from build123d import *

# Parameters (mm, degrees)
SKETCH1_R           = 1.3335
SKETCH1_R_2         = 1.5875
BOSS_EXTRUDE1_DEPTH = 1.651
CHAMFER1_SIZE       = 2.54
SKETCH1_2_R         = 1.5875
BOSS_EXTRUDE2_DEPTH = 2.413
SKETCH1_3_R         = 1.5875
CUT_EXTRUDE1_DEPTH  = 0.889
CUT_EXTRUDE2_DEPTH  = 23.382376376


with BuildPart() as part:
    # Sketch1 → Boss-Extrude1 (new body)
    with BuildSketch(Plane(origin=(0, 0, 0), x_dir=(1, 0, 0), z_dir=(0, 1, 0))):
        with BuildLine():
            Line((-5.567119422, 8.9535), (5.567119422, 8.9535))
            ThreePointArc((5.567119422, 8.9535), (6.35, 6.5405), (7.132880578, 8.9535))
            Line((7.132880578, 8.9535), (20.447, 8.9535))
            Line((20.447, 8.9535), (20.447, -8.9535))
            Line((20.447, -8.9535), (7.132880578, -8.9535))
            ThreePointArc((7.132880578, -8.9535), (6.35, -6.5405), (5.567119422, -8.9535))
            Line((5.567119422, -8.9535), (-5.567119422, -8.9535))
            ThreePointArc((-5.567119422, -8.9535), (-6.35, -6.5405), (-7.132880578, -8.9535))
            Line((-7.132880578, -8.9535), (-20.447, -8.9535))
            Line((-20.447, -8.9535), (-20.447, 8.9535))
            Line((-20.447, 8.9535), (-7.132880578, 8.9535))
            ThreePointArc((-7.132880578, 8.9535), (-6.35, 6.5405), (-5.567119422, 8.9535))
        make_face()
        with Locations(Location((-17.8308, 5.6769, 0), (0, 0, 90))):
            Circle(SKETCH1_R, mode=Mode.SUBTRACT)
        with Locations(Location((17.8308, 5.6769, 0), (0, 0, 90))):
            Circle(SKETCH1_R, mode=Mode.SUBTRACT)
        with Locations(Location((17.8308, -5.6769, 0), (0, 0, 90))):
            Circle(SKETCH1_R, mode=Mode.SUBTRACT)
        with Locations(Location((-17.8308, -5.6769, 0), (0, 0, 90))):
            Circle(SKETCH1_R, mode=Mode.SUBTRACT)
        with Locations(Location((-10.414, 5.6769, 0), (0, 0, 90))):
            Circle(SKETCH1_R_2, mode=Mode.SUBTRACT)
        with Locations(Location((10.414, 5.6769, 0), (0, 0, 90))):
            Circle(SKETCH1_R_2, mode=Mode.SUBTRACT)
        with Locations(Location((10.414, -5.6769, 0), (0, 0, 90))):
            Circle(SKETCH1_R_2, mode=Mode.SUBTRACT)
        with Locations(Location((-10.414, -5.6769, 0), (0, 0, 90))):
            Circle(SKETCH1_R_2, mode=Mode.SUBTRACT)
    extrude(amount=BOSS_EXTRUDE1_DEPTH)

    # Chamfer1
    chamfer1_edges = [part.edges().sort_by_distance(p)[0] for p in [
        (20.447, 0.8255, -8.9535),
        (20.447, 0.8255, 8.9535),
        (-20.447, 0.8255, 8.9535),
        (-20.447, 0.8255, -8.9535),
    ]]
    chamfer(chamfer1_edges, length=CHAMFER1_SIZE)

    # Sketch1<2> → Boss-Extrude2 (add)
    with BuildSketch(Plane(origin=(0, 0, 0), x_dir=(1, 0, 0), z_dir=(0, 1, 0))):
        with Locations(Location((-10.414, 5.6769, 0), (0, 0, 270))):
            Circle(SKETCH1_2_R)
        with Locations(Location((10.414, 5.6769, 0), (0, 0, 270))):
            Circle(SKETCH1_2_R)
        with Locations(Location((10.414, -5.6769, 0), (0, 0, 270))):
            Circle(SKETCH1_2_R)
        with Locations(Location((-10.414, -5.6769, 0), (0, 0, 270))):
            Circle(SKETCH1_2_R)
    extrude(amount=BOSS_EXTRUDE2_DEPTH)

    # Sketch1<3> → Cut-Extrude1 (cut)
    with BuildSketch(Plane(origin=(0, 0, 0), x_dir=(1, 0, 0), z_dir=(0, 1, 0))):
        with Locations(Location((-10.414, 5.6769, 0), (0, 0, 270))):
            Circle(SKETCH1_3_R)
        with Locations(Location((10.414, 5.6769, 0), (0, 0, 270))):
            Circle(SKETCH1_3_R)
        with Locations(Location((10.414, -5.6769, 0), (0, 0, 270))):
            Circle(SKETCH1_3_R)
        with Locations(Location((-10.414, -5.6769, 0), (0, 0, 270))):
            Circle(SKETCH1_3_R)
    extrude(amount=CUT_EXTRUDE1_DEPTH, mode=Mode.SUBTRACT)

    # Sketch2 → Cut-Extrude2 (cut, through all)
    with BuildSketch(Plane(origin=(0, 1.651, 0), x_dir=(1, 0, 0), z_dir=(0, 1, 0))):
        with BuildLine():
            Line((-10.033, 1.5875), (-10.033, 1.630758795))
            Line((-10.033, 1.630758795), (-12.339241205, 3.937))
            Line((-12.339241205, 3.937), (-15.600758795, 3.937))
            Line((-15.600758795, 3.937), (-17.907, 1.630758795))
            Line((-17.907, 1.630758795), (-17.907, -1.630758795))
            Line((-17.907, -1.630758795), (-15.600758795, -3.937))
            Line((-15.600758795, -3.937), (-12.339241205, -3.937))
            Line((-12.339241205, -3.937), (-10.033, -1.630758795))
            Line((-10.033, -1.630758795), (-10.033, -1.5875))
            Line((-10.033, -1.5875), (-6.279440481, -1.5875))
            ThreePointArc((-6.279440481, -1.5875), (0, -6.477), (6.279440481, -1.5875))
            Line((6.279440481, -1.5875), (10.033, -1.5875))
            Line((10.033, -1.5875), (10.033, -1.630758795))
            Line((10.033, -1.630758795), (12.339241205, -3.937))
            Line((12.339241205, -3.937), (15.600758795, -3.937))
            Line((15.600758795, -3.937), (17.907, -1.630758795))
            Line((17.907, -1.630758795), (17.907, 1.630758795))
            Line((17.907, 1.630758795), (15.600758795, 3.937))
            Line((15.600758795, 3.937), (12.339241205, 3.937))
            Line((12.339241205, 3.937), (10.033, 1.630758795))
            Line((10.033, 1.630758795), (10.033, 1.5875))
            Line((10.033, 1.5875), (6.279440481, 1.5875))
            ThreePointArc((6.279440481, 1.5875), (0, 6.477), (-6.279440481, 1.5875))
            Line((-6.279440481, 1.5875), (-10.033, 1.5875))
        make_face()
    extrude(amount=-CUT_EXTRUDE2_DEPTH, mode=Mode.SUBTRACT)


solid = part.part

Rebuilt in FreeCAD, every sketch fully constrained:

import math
import FreeCAD as App
import Part
import Sketcher
Q = App.Units.Quantity


def edges_at(feature, points):
    """Names of the edges that pass closest to the given points."""
    edges = feature.Shape.Edges
    near = lambda p: min(range(len(edges)), key=lambda i: edges[i].distToShape(Part.Vertex(*p))[0])
    return sorted({f"Edge{near(p) + 1}" for p in points})

doc = App.newDocument("Part")
params = doc.addObject("Spreadsheet::Sheet", "Params")
for row, (alias, value) in enumerate([
    ("sketch1_diameter", "0.105 in"),
    ("sketch1_diameter2", "0.125 in"),
    ("sketch1_height", "0.705 in"),
    ("pad1_length", "0.065 in"),
    ("chamfer_size", "0.1 in"),
    ("sketch2_diameter", "0.125 in"),
    ("pad2_length", "0.095 in"),
    ("sketch3_diameter", "0.125 in"),
    ("pocket1_length", "0.035 in"),
    ("sketch4_radius", "0.255 in"),
], start=1):
    params.set(f"A{row}", alias)
    params.set(f"B{row}", "=" + value)
    params.setAlias(f"B{row}", alias)

body = doc.addObject("PartDesign::Body", "Body")

sketch1 = body.newObject("Sketcher::SketchObject", "Sketch")
sketch1.AttachmentSupport = (doc.getObject("XZ_Plane"), [""])
sketch1.MapMode = "FlatFace"
sketch1.addGeometry(Part.LineSegment(App.Vector(5.567119, -8.9535, 0), App.Vector(-5.567119, -8.9535, 0)), False)
sketch1.addGeometry(Part.ArcOfCircle(Part.Circle(App.Vector(-6.35, -7.874, 0), App.Vector(0, 0, 1), 1.3335), math.radians(-54.049432), math.radians(234.049432)), False)
sketch1.addGeometry(Part.LineSegment(App.Vector(-7.132881, -8.9535, 0), App.Vector(-20.447, -8.9535, 0)), False)
sketch1.addGeometry(Part.LineSegment(App.Vector(-20.447, -8.9535, 0), App.Vector(-20.447, 8.9535, 0)), False)
sketch1.addGeometry(Part.LineSegment(App.Vector(-20.447, 8.9535, 0), App.Vector(-7.132881, 8.9535, 0)), False)
sketch1.addGeometry(Part.ArcOfCircle(Part.Circle(App.Vector(-6.35, 7.874, 0), App.Vector(0, 0, 1), 1.3335), math.radians(125.950568), math.radians(414.049432)), False)
sketch1.addGeometry(Part.LineSegment(App.Vector(-5.567119, 8.9535, 0), App.Vector(5.567119, 8.9535, 0)), False)
sketch1.addGeometry(Part.ArcOfCircle(Part.Circle(App.Vector(6.35, 7.874, 0), App.Vector(0, 0, 1), 1.3335), math.radians(125.950568), math.radians(414.049432)), False)
sketch1.addGeometry(Part.LineSegment(App.Vector(7.132881, 8.9535, 0), App.Vector(20.447, 8.9535, 0)), False)
sketch1.addGeometry(Part.LineSegment(App.Vector(20.447, 8.9535, 0), App.Vector(20.447, -8.9535, 0)), False)
sketch1.addGeometry(Part.LineSegment(App.Vector(20.447, -8.9535, 0), App.Vector(7.132881, -8.9535, 0)), False)
sketch1.addGeometry(Part.ArcOfCircle(Part.Circle(App.Vector(6.35, -7.874, 0), App.Vector(0, 0, 1), 1.3335), math.radians(-54.049432), math.radians(234.049432)), False)
sketch1.addGeometry(Part.Circle(App.Vector(17.8308, 5.6769, 0), App.Vector(0, 0, 1), 1.3335), False)
sketch1.addGeometry(Part.Circle(App.Vector(10.414, 5.6769, 0), App.Vector(0, 0, 1), 1.5875), False)
sketch1.addGeometry(Part.Circle(App.Vector(-10.414, 5.6769, 0), App.Vector(0, 0, 1), 1.5875), False)
sketch1.addGeometry(Part.Circle(App.Vector(-17.8308, 5.6769, 0), App.Vector(0, 0, 1), 1.3335), False)
sketch1.addGeometry(Part.Circle(App.Vector(17.8308, -5.6769, 0), App.Vector(0, 0, 1), 1.3335), False)
sketch1.addGeometry(Part.Circle(App.Vector(10.414, -5.6769, 0), App.Vector(0, 0, 1), 1.5875), False)
sketch1.addGeometry(Part.Circle(App.Vector(-10.414, -5.6769, 0), App.Vector(0, 0, 1), 1.5875), False)
sketch1.addGeometry(Part.Circle(App.Vector(-17.8308, -5.6769, 0), App.Vector(0, 0, 1), 1.3335), False)
sketch1.addConstraint(Sketcher.Constraint("Coincident", 0, 2, 1, 1))
sketch1.addConstraint(Sketcher.Constraint("Coincident", 1, 2, 2, 1))
sketch1.addConstraint(Sketcher.Constraint("Coincident", 2, 2, 3, 1))
sketch1.addConstraint(Sketcher.Constraint("Coincident", 3, 2, 4, 1))
sketch1.addConstraint(Sketcher.Constraint("Coincident", 4, 2, 5, 1))
sketch1.addConstraint(Sketcher.Constraint("Coincident", 5, 2, 6, 1))
sketch1.addConstraint(Sketcher.Constraint("Coincident", 6, 2, 7, 1))
sketch1.addConstraint(Sketcher.Constraint("Coincident", 7, 2, 8, 1))
sketch1.addConstraint(Sketcher.Constraint("Coincident", 8, 2, 9, 1))
sketch1.addConstraint(Sketcher.Constraint("Coincident", 9, 2, 10, 1))
sketch1.addConstraint(Sketcher.Constraint("Coincident", 10, 2, 11, 1))
sketch1.addConstraint(Sketcher.Constraint("Coincident", 11, 2, 0, 1))
sketch1.addConstraint(Sketcher.Constraint("Horizontal", 0))
sketch1.addConstraint(Sketcher.Constraint("Horizontal", 2))
sketch1.addConstraint(Sketcher.Constraint("Vertical", 3))
sketch1.addConstraint(Sketcher.Constraint("Horizontal", 4))
sketch1.addConstraint(Sketcher.Constraint("Horizontal", 6))
sketch1.addConstraint(Sketcher.Constraint("Horizontal", 8))
sketch1.addConstraint(Sketcher.Constraint("Vertical", 9))
sketch1.addConstraint(Sketcher.Constraint("Horizontal", 10))
sketch1.addConstraint(Sketcher.Constraint("Equal", 1, 5))
sketch1.addConstraint(Sketcher.Constraint("Equal", 5, 7))
sketch1.addConstraint(Sketcher.Constraint("Equal", 7, 11))
sketch1.addConstraint(Sketcher.Constraint("Equal", 11, 12))
sketch1.addConstraint(Sketcher.Constraint("Equal", 13, 14))
sketch1.addConstraint(Sketcher.Constraint("Equal", 12, 15))
sketch1.addConstraint(Sketcher.Constraint("Equal", 15, 16))
sketch1.addConstraint(Sketcher.Constraint("Equal", 14, 17))
sketch1.addConstraint(Sketcher.Constraint("Equal", 17, 18))
sketch1.addConstraint(Sketcher.Constraint("Equal", 16, 19))
sketch1.addConstraint(Sketcher.Constraint("Symmetric", 1, 3, 7, 3, -1, 1))
sketch1.addConstraint(Sketcher.Constraint("Symmetric", 5, 3, 11, 3, -1, 1))
sketch1.addConstraint(Sketcher.Constraint("Symmetric", 15, 3, 16, 3, -1, 1))
sketch1.addConstraint(Sketcher.Constraint("Symmetric", 14, 3, 17, 3, -1, 1))
sketch1.addConstraint(Sketcher.Constraint("Symmetric", 13, 3, 18, 3, -1, 1))
sketch1.addConstraint(Sketcher.Constraint("Symmetric", 12, 3, 19, 3, -1, 1))
sketch1.addConstraint(Sketcher.Constraint("Symmetric", 2, 2, 8, 2, -1, 1))
sketch1.addConstraint(Sketcher.Constraint("Symmetric", 5, 3, 7, 3, -2))
sketch1.addConstraint(Sketcher.Constraint("Symmetric", 13, 3, 14, 3, -2))
sketch1.addConstraint(Sketcher.Constraint("Symmetric", 12, 3, 15, 3, -2))
sketch1.addConstraint(Sketcher.Constraint("Horizontal", 12, 3, 13, 3))
sketch1.addConstraint(Sketcher.Constraint("Horizontal", 0, 2, 1, 2))
sketch1.addConstraint(Sketcher.Constraint("Horizontal", 4, 2, 5, 2))
sketch1.addConstraint(Sketcher.Constraint("Horizontal", 6, 2, 7, 2))
sketch1.addConstraint(Sketcher.Constraint("Horizontal", 2, 2, 9, 2))
sketch1.addConstraint(Sketcher.Constraint("Diameter", 12, Q("0.105 in")))
sketch1.addConstraint(Sketcher.Constraint("Diameter", 13, Q("0.125 in")))
sketch1.addConstraint(Sketcher.Constraint("DistanceX", 5, 3, 7, 3, Q("0.5 in")))
sketch1.addConstraint(Sketcher.Constraint("DistanceY", 3, 1, 3, 2, Q("0.705 in")))
sketch1.addConstraint(Sketcher.Constraint("DistanceY", 1, 3, -1, 1, Q("0.31 in")))
sketch1.addConstraint(Sketcher.Constraint("DistanceX", -1, 1, 13, 3, Q("0.41 in")))
sketch1.addConstraint(Sketcher.Constraint("DistanceX", -1, 1, 12, 3, Q("0.702 in")))
sketch1.addConstraint(Sketcher.Constraint("DistanceX", 2, 2, -1, 1, Q("0.805 in")))
sketch1.addConstraint(Sketcher.Constraint("DistanceY", 16, 3, 12, 3, Q("0.447 in")))
sketch1.setExpression("Constraints[45]", "Params.sketch1_diameter")
sketch1.setExpression("Constraints[46]", "Params.sketch1_diameter2")
sketch1.setExpression("Constraints[48]", "Params.sketch1_height")
pad1 = body.newObject("PartDesign::Pad", "Pad")
pad1.Profile = sketch1
pad1.setExpression("Length", "Params.pad1_length")
pad1.Reversed = True
doc.recompute()

chamfer = body.newObject("PartDesign::Chamfer", "Chamfer")
chamfer.Base = (pad1, edges_at(pad1, [
    (20.447, 0.826, -8.954),
    (20.447, 0.826, 8.954),
    (-20.447, 0.826, 8.954),
    (-20.447, 0.826, -8.954),
]))
chamfer.setExpression("Size", "Params.chamfer_size")

sketch2 = body.newObject("Sketcher::SketchObject", "Sketch001")
sketch2.AttachmentSupport = (doc.getObject("XZ_Plane"), [""])
sketch2.MapMode = "FlatFace"
sketch2.addGeometry(Part.Circle(App.Vector(-10.414, -5.6769, 0), App.Vector(0, 0, 1), 1.5875), False)
sketch2.addGeometry(Part.Circle(App.Vector(10.414, -5.6769, 0), App.Vector(0, 0, 1), 1.5875), False)
sketch2.addGeometry(Part.Circle(App.Vector(10.414, 5.6769, 0), App.Vector(0, 0, 1), 1.5875), False)
sketch2.addGeometry(Part.Circle(App.Vector(-10.414, 5.6769, 0), App.Vector(0, 0, 1), 1.5875), False)
sketch2.addConstraint(Sketcher.Constraint("Equal", 0, 1))
sketch2.addConstraint(Sketcher.Constraint("Equal", 1, 2))
sketch2.addConstraint(Sketcher.Constraint("Equal", 2, 3))
sketch2.addConstraint(Sketcher.Constraint("Symmetric", 0, 3, 2, 3, -1, 1))
sketch2.addConstraint(Sketcher.Constraint("Symmetric", 1, 3, 3, 3, -1, 1))
sketch2.addConstraint(Sketcher.Constraint("Symmetric", 0, 3, 1, 3, -2))
sketch2.addConstraint(Sketcher.Constraint("Diameter", 0, Q("0.125 in")))
sketch2.addConstraint(Sketcher.Constraint("DistanceX", 0, 3, -1, 1, Q("0.41 in")))
sketch2.addConstraint(Sketcher.Constraint("DistanceY", 1, 3, 2, 3, Q("0.447 in")))
sketch2.setExpression("Constraints[6]", "Params.sketch2_diameter")
pad2 = body.newObject("PartDesign::Pad", "Pad001")
pad2.Profile = sketch2
pad2.setExpression("Length", "Params.pad2_length")
pad2.Reversed = True

sketch3 = body.newObject("Sketcher::SketchObject", "Sketch002")
sketch3.AttachmentSupport = (doc.getObject("XZ_Plane"), [""])
sketch3.MapMode = "FlatFace"
sketch3.addGeometry(Part.Circle(App.Vector(-10.414, -5.6769, 0), App.Vector(0, 0, 1), 1.5875), False)
sketch3.addGeometry(Part.Circle(App.Vector(10.414, -5.6769, 0), App.Vector(0, 0, 1), 1.5875), False)
sketch3.addGeometry(Part.Circle(App.Vector(10.414, 5.6769, 0), App.Vector(0, 0, 1), 1.5875), False)
sketch3.addGeometry(Part.Circle(App.Vector(-10.414, 5.6769, 0), App.Vector(0, 0, 1), 1.5875), False)
sketch3.addConstraint(Sketcher.Constraint("Equal", 0, 1))
sketch3.addConstraint(Sketcher.Constraint("Equal", 1, 2))
sketch3.addConstraint(Sketcher.Constraint("Equal", 2, 3))
sketch3.addConstraint(Sketcher.Constraint("Symmetric", 0, 3, 2, 3, -1, 1))
sketch3.addConstraint(Sketcher.Constraint("Symmetric", 1, 3, 3, 3, -1, 1))
sketch3.addConstraint(Sketcher.Constraint("Symmetric", 0, 3, 1, 3, -2))
sketch3.addConstraint(Sketcher.Constraint("Diameter", 0, Q("0.125 in")))
sketch3.addConstraint(Sketcher.Constraint("DistanceX", 0, 3, -1, 1, Q("0.41 in")))
sketch3.addConstraint(Sketcher.Constraint("DistanceY", 1, 3, 2, 3, Q("0.447 in")))
sketch3.setExpression("Constraints[6]", "Params.sketch3_diameter")
pocket1 = body.newObject("PartDesign::Pocket", "Pocket")
pocket1.Profile = sketch3
pocket1.setExpression("Length", "Params.pocket1_length")

sketch4 = body.newObject("Sketcher::SketchObject", "Sketch003")
sketch4.AttachmentSupport = (doc.getObject("XZ_Plane"), [""])
sketch4.MapMode = "FlatFace"
sketch4.AttachmentOffset = App.Placement(App.Vector(0, 0, -0.065 * 25.4), App.Rotation())
sketch4.addGeometry(Part.LineSegment(App.Vector(-10.033, -1.5875, 0), App.Vector(-10.033, -1.630759, 0)), False)
sketch4.addGeometry(Part.LineSegment(App.Vector(-10.033, -1.630759, 0), App.Vector(-12.339241, -3.937, 0)), False)
sketch4.addGeometry(Part.LineSegment(App.Vector(-12.339241, -3.937, 0), App.Vector(-15.600759, -3.937, 0)), False)
sketch4.addGeometry(Part.LineSegment(App.Vector(-15.600759, -3.937, 0), App.Vector(-17.907, -1.630759, 0)), False)
sketch4.addGeometry(Part.LineSegment(App.Vector(-17.907, -1.630759, 0), App.Vector(-17.907, 1.630759, 0)), False)
sketch4.addGeometry(Part.LineSegment(App.Vector(-17.907, 1.630759, 0), App.Vector(-15.600759, 3.937, 0)), False)
sketch4.addGeometry(Part.LineSegment(App.Vector(-15.600759, 3.937, 0), App.Vector(-12.339241, 3.937, 0)), False)
sketch4.addGeometry(Part.LineSegment(App.Vector(-12.339241, 3.937, 0), App.Vector(-10.033, 1.630759, 0)), False)
sketch4.addGeometry(Part.LineSegment(App.Vector(-10.033, 1.630759, 0), App.Vector(-10.033, 1.5875, 0)), False)
sketch4.addGeometry(Part.LineSegment(App.Vector(-10.033, 1.5875, 0), App.Vector(-6.27944, 1.5875, 0)), False)
sketch4.addGeometry(Part.ArcOfCircle(Part.Circle(App.Vector(0, 0, 0), App.Vector(0, 0, 1), 6.477), math.radians(14.187628), math.radians(165.812372)), False)
sketch4.addGeometry(Part.LineSegment(App.Vector(6.27944, 1.5875, 0), App.Vector(10.033, 1.5875, 0)), False)
sketch4.addGeometry(Part.LineSegment(App.Vector(10.033, 1.5875, 0), App.Vector(10.033, 1.630759, 0)), False)
sketch4.addGeometry(Part.LineSegment(App.Vector(10.033, 1.630759, 0), App.Vector(12.339241, 3.937, 0)), False)
sketch4.addGeometry(Part.LineSegment(App.Vector(12.339241, 3.937, 0), App.Vector(15.600759, 3.937, 0)), False)
sketch4.addGeometry(Part.LineSegment(App.Vector(15.600759, 3.937, 0), App.Vector(17.907, 1.630759, 0)), False)
sketch4.addGeometry(Part.LineSegment(App.Vector(17.907, 1.630759, 0), App.Vector(17.907, -1.630759, 0)), False)
sketch4.addGeometry(Part.LineSegment(App.Vector(17.907, -1.630759, 0), App.Vector(15.600759, -3.937, 0)), False)
sketch4.addGeometry(Part.LineSegment(App.Vector(15.600759, -3.937, 0), App.Vector(12.339241, -3.937, 0)), False)
sketch4.addGeometry(Part.LineSegment(App.Vector(12.339241, -3.937, 0), App.Vector(10.033, -1.630759, 0)), False)
sketch4.addGeometry(Part.LineSegment(App.Vector(10.033, -1.630759, 0), App.Vector(10.033, -1.5875, 0)), False)
sketch4.addGeometry(Part.LineSegment(App.Vector(10.033, -1.5875, 0), App.Vector(6.27944, -1.5875, 0)), False)
sketch4.addGeometry(Part.ArcOfCircle(Part.Circle(App.Vector(0, 0, 0), App.Vector(0, 0, 1), 6.477), math.radians(-165.812372), math.radians(-14.187628)), False)
sketch4.addGeometry(Part.LineSegment(App.Vector(-6.27944, -1.5875, 0), App.Vector(-10.033, -1.5875, 0)), False)
sketch4.addConstraint(Sketcher.Constraint("Coincident", 0, 2, 1, 1))
sketch4.addConstraint(Sketcher.Constraint("Coincident", 1, 2, 2, 1))
sketch4.addConstraint(Sketcher.Constraint("Coincident", 2, 2, 3, 1))
sketch4.addConstraint(Sketcher.Constraint("Coincident", 3, 2, 4, 1))
sketch4.addConstraint(Sketcher.Constraint("Coincident", 4, 2, 5, 1))
sketch4.addConstraint(Sketcher.Constraint("Coincident", 5, 2, 6, 1))
sketch4.addConstraint(Sketcher.Constraint("Coincident", 6, 2, 7, 1))
sketch4.addConstraint(Sketcher.Constraint("Coincident", 7, 2, 8, 1))
sketch4.addConstraint(Sketcher.Constraint("Coincident", 8, 2, 9, 1))
sketch4.addConstraint(Sketcher.Constraint("Coincident", 9, 2, 10, 2))
sketch4.addConstraint(Sketcher.Constraint("Coincident", 10, 1, 11, 1))
sketch4.addConstraint(Sketcher.Constraint("Coincident", 11, 2, 12, 1))
sketch4.addConstraint(Sketcher.Constraint("Coincident", 12, 2, 13, 1))
sketch4.addConstraint(Sketcher.Constraint("Coincident", 13, 2, 14, 1))
sketch4.addConstraint(Sketcher.Constraint("Coincident", 14, 2, 15, 1))
sketch4.addConstraint(Sketcher.Constraint("Coincident", 15, 2, 16, 1))
sketch4.addConstraint(Sketcher.Constraint("Coincident", 16, 2, 17, 1))
sketch4.addConstraint(Sketcher.Constraint("Coincident", 17, 2, 18, 1))
sketch4.addConstraint(Sketcher.Constraint("Coincident", 18, 2, 19, 1))
sketch4.addConstraint(Sketcher.Constraint("Coincident", 19, 2, 20, 1))
sketch4.addConstraint(Sketcher.Constraint("Coincident", 20, 2, 21, 1))
sketch4.addConstraint(Sketcher.Constraint("Coincident", 21, 2, 22, 2))
sketch4.addConstraint(Sketcher.Constraint("Coincident", 22, 1, 23, 1))
sketch4.addConstraint(Sketcher.Constraint("Coincident", 23, 2, 0, 1))
sketch4.addConstraint(Sketcher.Constraint("Vertical", 0))
sketch4.addConstraint(Sketcher.Constraint("Horizontal", 2))
sketch4.addConstraint(Sketcher.Constraint("Vertical", 4))
sketch4.addConstraint(Sketcher.Constraint("Horizontal", 6))
sketch4.addConstraint(Sketcher.Constraint("Vertical", 8))
sketch4.addConstraint(Sketcher.Constraint("Horizontal", 9))
sketch4.addConstraint(Sketcher.Constraint("Horizontal", 11))
sketch4.addConstraint(Sketcher.Constraint("Vertical", 12))
sketch4.addConstraint(Sketcher.Constraint("Horizontal", 14))
sketch4.addConstraint(Sketcher.Constraint("Vertical", 16))
sketch4.addConstraint(Sketcher.Constraint("Horizontal", 18))
sketch4.addConstraint(Sketcher.Constraint("Vertical", 20))
sketch4.addConstraint(Sketcher.Constraint("Horizontal", 21))
sketch4.addConstraint(Sketcher.Constraint("Horizontal", 23))
sketch4.addConstraint(Sketcher.Constraint("Coincident", 10, 3, -1, 1))
sketch4.addConstraint(Sketcher.Constraint("Coincident", 22, 3, -1, 1))
sketch4.addConstraint(Sketcher.Constraint("Equal", 10, 22))
sketch4.addConstraint(Sketcher.Constraint("Symmetric", 0, 2, 12, 2, -1, 1))
sketch4.addConstraint(Sketcher.Constraint("Symmetric", 1, 2, 13, 2, -1, 1))
sketch4.addConstraint(Sketcher.Constraint("Symmetric", 3, 2, 15, 2, -1, 1))
sketch4.addConstraint(Sketcher.Constraint("Symmetric", 5, 2, 17, 2, -1, 1))
sketch4.addConstraint(Sketcher.Constraint("Symmetric", 7, 2, 19, 2, -1, 1))
sketch4.addConstraint(Sketcher.Constraint("Symmetric", 8, 2, 11, 2, -2))
sketch4.addConstraint(Sketcher.Constraint("Symmetric", 6, 2, 13, 2, -2))
sketch4.addConstraint(Sketcher.Constraint("Perpendicular", 1, 3))
sketch4.addConstraint(Sketcher.Constraint("Perpendicular", 3, 5))
sketch4.addConstraint(Sketcher.Constraint("Perpendicular", 5, 7))
sketch4.addConstraint(Sketcher.Constraint("Perpendicular", 13, 15))
sketch4.addConstraint(Sketcher.Constraint("Perpendicular", 15, 17))
sketch4.addConstraint(Sketcher.Constraint("Perpendicular", 17, 19))
sketch4.addConstraint(Sketcher.Constraint("Horizontal", 0, 2, 3, 2))
sketch4.addConstraint(Sketcher.Constraint("Horizontal", 4, 2, 7, 2))
sketch4.addConstraint(Sketcher.Constraint("Horizontal", 7, 2, 12, 2))
sketch4.addConstraint(Sketcher.Constraint("Horizontal", 21, 2, 22, 1))
sketch4.addConstraint(Sketcher.Constraint("Vertical", 10, 1, 21, 2))
sketch4.addConstraint(Sketcher.Constraint("Equal", 18, 4))
sketch4.addConstraint(Sketcher.Constraint("Radius", 10, Q("0.255 in")))
sketch4.addConstraint(Sketcher.Constraint("DistanceX", 3, 2, 0, 2, Q("0.31 in")))
sketch4.addConstraint(Sketcher.Constraint("DistanceX", 8, 2, 11, 2, Q("0.79 in")))
sketch4.addConstraint(Sketcher.Constraint("DistanceY", -1, 1, 8, 2, Q("0.0625 in")))
sketch4.addConstraint(Sketcher.Constraint("DistanceY", 0, 2, 0, 1, 0.043259))
sketch4.setExpression("Constraints[60]", "Params.sketch4_radius")
pocket2 = body.newObject("PartDesign::Pocket", "Pocket001")
pocket2.Profile = sketch4
pocket2.Type = "ThroughAll"
pocket2.Reversed = True

doc.recompute()
